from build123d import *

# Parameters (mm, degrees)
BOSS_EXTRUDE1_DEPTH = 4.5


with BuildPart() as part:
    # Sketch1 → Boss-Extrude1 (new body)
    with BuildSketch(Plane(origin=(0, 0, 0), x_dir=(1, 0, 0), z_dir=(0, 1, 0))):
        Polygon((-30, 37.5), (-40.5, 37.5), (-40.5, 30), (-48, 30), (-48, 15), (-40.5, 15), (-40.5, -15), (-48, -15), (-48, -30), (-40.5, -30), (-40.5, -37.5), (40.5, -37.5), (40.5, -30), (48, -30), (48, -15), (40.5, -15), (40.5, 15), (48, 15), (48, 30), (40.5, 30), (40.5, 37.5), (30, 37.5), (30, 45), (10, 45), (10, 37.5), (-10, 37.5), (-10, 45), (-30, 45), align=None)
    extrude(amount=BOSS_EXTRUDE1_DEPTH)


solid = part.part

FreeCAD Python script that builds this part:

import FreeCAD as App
import Part
import Sketcher
from FreeCAD import Vector


def add_polygon(sketch, points):
    """Adds a closed chain of lines whose ends are joined by coincident constraints."""
    first, n = sketch.GeometryCount, len(points)
    for a, b in zip(points, points[1:] + points[:1]):
        sketch.addGeometry(Part.LineSegment(App.Vector(*a, 0), App.Vector(*b, 0)), False)
    for i in range(n):
        sketch.addConstraint(Sketcher.Constraint("Coincident", first + i, 2, first + (i + 1) % n, 1))

doc = App.newDocument("Part")
params = doc.addObject("Spreadsheet::Sheet", "Params")
for row, (alias, value) in enumerate([
    ("sketch1_width", "81 mm"),
    ("sketch1_width2", "20 mm"),
    ("sketch1_height", "15 mm"),
    ("sketch1_height2", "30 mm"),
    ("sketch1_width3", "7.5 mm"),
    ("pad1_length", "4.5 mm"),
], start=1):
    params.set(f"A{row}", alias)
    params.set(f"B{row}", "=" + value)
    params.setAlias(f"B{row}", alias)

body = doc.addObject("PartDesign::Body", "Body")

# Sketch on XZ plane
sketch1 = body.newObject("Sketcher::SketchObject", "Sketch")
sketch1.AttachmentSupport = (doc.getObject("XZ_Plane"), [""])
sketch1.MapMode = "FlatFace"
add_polygon(sketch1, [(-30, -38), (-40, -38), (-40, -30), (-48, -30), (-48, -15), (-40, -15), (-40, 15), (-48, 15), (-48, 30), (-40, 30), (-40, 38), (40, 38), (40, 30), (48, 30), (48, 15), (40, 15), (40, -15), (48, -15), (48, -30), (40, -30), (40, -38), (30, -38), (30, -45), (10, -45), (10, -38), (-10, -38), (-10, -45), (-30, -45)])  # lines 0-27
sketch1.addConstraint(Sketcher.Constraint("Horizontal", 0))
sketch1.addConstraint(Sketcher.Constraint("Vertical", 1))
sketch1.addConstraint(Sketcher.Constraint("Horizontal", 2))
sketch1.addConstraint(Sketcher.Constraint("Vertical", 3))
sketch1.addConstraint(Sketcher.Constraint("Horizontal", 4))
sketch1.addConstraint(Sketcher.Constraint("Vertical", 5))
sketch1.addConstraint(Sketcher.Constraint("Horizontal", 6))
sketch1.addConstraint(Sketcher.Constraint("Vertical", 7))
sketch1.addConstraint(Sketcher.Constraint("Horizontal", 8))
sketch1.addConstraint(Sketcher.Constraint("Vertical", 9))
sketch1.addConstraint(Sketcher.Constraint("Horizontal", 10))
sketch1.addConstraint(Sketcher.Constraint("Vertical", 11))
sketch1.addConstraint(Sketcher.Constraint("Horizontal", 12))
sketch1.addConstraint(Sketcher.Constraint("Vertical", 13))
sketch1.addConstraint(Sketcher.Constraint("Horizontal", 14))
sketch1.addConstraint(Sketcher.Constraint("Vertical", 15))
sketch1.addConstraint(Sketcher.Constraint("Horizontal", 16))
sketch1.addConstraint(Sketcher.Constraint("Vertical", 17))
sketch1.addConstraint(Sketcher.Constraint("Horizontal", 18))
sketch1.addConstraint(Sketcher.Constraint("Vertical", 19))
sketch1.addConstraint(Sketcher.Constraint("Horizontal", 20))
sketch1.addConstraint(Sketcher.Constraint("Vertical", 21))
sketch1.addConstraint(Sketcher.Constraint("Horizontal", 22))
sketch1.addConstraint(Sketcher.Constraint("Vertical", 23))
sketch1.addConstraint(Sketcher.Constraint("Horizontal", 24))
sketch1.addConstraint(Sketcher.Constraint("Vertical", 25))
sketch1.addConstraint(Sketcher.Constraint("Horizontal", 26))
sketch1.addConstraint(Sketcher.Constraint("Vertical", 27))
sketch1.addConstraint(Sketcher.Constraint("Symmetric", 0, 2, 10, 2, -1, 1))
sketch1.addConstraint(Sketcher.Constraint("Symmetric", 2, 2, 12, 2, -1, 1))
sketch1.addConstraint(Sketcher.Constraint("Symmetric", 4, 2, 14, 2, -1, 1))
sketch1.addConstraint(Sketcher.Constraint("Symmetric", 6, 2, 16, 2, -1, 1))
sketch1.addConstraint(Sketcher.Constraint("Symmetric", 8, 2, 18, 2, -1, 1))
sketch1.addConstraint(Sketcher.Constraint("Symmetric", 8, 2, 11, 2, -2))
sketch1.addConstraint(Sketcher.Constraint("Symmetric", 6, 2, 13, 2, -2))
sketch1.addConstraint(Sketcher.Constraint("Symmetric", 22, 2, 25, 2, -2))
sketch1.addConstraint(Sketcher.Constraint("Symmetric", 20, 2, 27, 2, -2))
sketch1.addConstraint(Sketcher.Constraint("Horizontal", 20, 2, 23, 2))
sketch1.addConstraint(Sketcher.Constraint("Vertical", 1, 2, 4, 2))
sketch1.addConstraint(Sketcher.Constraint("Equal", 22, 24))
sketch1.addConstraint(Sketcher.Constraint("Equal", 18, 1))
sketch1.addConstraint(Sketcher.Constraint("Equal", 19, 21))
sketch1.addConstraint(Sketcher.Constraint("DistanceX", 10, 1, 10, 2, 81.0))
sketch1.addConstraint(Sketcher.Constraint("DistanceX", 22, 2, 22, 1, 20.0))
sketch1.addConstraint(Sketcher.Constraint("DistanceY", 3, 1, 3, 2, 15.0))
sketch1.addConstraint(Sketcher.Constraint("DistanceY", 5, 1, 5, 2, 30.0))
sketch1.addConstraint(Sketcher.Constraint("DistanceX", 2, 2, 2, 1, 7.5))
sketch1.setExpression("Constraints[70]", "Params.sketch1_width")
sketch1.setExpression("Constraints[71]", "Params.sketch1_width2")
sketch1.setExpression("Constraints[72]", "Params.sketch1_height")
sketch1.setExpression("Constraints[73]", "Params.sketch1_height2")
sketch1.setExpression("Constraints[74]", "Params.sketch1_width3")
pad1 = body.newObject("PartDesign::Pad", "Pad")
pad1.Profile = sketch1
pad1.setExpression("Length", "Params.pad1_length")
pad1.Reversed = True

doc.recompute()
